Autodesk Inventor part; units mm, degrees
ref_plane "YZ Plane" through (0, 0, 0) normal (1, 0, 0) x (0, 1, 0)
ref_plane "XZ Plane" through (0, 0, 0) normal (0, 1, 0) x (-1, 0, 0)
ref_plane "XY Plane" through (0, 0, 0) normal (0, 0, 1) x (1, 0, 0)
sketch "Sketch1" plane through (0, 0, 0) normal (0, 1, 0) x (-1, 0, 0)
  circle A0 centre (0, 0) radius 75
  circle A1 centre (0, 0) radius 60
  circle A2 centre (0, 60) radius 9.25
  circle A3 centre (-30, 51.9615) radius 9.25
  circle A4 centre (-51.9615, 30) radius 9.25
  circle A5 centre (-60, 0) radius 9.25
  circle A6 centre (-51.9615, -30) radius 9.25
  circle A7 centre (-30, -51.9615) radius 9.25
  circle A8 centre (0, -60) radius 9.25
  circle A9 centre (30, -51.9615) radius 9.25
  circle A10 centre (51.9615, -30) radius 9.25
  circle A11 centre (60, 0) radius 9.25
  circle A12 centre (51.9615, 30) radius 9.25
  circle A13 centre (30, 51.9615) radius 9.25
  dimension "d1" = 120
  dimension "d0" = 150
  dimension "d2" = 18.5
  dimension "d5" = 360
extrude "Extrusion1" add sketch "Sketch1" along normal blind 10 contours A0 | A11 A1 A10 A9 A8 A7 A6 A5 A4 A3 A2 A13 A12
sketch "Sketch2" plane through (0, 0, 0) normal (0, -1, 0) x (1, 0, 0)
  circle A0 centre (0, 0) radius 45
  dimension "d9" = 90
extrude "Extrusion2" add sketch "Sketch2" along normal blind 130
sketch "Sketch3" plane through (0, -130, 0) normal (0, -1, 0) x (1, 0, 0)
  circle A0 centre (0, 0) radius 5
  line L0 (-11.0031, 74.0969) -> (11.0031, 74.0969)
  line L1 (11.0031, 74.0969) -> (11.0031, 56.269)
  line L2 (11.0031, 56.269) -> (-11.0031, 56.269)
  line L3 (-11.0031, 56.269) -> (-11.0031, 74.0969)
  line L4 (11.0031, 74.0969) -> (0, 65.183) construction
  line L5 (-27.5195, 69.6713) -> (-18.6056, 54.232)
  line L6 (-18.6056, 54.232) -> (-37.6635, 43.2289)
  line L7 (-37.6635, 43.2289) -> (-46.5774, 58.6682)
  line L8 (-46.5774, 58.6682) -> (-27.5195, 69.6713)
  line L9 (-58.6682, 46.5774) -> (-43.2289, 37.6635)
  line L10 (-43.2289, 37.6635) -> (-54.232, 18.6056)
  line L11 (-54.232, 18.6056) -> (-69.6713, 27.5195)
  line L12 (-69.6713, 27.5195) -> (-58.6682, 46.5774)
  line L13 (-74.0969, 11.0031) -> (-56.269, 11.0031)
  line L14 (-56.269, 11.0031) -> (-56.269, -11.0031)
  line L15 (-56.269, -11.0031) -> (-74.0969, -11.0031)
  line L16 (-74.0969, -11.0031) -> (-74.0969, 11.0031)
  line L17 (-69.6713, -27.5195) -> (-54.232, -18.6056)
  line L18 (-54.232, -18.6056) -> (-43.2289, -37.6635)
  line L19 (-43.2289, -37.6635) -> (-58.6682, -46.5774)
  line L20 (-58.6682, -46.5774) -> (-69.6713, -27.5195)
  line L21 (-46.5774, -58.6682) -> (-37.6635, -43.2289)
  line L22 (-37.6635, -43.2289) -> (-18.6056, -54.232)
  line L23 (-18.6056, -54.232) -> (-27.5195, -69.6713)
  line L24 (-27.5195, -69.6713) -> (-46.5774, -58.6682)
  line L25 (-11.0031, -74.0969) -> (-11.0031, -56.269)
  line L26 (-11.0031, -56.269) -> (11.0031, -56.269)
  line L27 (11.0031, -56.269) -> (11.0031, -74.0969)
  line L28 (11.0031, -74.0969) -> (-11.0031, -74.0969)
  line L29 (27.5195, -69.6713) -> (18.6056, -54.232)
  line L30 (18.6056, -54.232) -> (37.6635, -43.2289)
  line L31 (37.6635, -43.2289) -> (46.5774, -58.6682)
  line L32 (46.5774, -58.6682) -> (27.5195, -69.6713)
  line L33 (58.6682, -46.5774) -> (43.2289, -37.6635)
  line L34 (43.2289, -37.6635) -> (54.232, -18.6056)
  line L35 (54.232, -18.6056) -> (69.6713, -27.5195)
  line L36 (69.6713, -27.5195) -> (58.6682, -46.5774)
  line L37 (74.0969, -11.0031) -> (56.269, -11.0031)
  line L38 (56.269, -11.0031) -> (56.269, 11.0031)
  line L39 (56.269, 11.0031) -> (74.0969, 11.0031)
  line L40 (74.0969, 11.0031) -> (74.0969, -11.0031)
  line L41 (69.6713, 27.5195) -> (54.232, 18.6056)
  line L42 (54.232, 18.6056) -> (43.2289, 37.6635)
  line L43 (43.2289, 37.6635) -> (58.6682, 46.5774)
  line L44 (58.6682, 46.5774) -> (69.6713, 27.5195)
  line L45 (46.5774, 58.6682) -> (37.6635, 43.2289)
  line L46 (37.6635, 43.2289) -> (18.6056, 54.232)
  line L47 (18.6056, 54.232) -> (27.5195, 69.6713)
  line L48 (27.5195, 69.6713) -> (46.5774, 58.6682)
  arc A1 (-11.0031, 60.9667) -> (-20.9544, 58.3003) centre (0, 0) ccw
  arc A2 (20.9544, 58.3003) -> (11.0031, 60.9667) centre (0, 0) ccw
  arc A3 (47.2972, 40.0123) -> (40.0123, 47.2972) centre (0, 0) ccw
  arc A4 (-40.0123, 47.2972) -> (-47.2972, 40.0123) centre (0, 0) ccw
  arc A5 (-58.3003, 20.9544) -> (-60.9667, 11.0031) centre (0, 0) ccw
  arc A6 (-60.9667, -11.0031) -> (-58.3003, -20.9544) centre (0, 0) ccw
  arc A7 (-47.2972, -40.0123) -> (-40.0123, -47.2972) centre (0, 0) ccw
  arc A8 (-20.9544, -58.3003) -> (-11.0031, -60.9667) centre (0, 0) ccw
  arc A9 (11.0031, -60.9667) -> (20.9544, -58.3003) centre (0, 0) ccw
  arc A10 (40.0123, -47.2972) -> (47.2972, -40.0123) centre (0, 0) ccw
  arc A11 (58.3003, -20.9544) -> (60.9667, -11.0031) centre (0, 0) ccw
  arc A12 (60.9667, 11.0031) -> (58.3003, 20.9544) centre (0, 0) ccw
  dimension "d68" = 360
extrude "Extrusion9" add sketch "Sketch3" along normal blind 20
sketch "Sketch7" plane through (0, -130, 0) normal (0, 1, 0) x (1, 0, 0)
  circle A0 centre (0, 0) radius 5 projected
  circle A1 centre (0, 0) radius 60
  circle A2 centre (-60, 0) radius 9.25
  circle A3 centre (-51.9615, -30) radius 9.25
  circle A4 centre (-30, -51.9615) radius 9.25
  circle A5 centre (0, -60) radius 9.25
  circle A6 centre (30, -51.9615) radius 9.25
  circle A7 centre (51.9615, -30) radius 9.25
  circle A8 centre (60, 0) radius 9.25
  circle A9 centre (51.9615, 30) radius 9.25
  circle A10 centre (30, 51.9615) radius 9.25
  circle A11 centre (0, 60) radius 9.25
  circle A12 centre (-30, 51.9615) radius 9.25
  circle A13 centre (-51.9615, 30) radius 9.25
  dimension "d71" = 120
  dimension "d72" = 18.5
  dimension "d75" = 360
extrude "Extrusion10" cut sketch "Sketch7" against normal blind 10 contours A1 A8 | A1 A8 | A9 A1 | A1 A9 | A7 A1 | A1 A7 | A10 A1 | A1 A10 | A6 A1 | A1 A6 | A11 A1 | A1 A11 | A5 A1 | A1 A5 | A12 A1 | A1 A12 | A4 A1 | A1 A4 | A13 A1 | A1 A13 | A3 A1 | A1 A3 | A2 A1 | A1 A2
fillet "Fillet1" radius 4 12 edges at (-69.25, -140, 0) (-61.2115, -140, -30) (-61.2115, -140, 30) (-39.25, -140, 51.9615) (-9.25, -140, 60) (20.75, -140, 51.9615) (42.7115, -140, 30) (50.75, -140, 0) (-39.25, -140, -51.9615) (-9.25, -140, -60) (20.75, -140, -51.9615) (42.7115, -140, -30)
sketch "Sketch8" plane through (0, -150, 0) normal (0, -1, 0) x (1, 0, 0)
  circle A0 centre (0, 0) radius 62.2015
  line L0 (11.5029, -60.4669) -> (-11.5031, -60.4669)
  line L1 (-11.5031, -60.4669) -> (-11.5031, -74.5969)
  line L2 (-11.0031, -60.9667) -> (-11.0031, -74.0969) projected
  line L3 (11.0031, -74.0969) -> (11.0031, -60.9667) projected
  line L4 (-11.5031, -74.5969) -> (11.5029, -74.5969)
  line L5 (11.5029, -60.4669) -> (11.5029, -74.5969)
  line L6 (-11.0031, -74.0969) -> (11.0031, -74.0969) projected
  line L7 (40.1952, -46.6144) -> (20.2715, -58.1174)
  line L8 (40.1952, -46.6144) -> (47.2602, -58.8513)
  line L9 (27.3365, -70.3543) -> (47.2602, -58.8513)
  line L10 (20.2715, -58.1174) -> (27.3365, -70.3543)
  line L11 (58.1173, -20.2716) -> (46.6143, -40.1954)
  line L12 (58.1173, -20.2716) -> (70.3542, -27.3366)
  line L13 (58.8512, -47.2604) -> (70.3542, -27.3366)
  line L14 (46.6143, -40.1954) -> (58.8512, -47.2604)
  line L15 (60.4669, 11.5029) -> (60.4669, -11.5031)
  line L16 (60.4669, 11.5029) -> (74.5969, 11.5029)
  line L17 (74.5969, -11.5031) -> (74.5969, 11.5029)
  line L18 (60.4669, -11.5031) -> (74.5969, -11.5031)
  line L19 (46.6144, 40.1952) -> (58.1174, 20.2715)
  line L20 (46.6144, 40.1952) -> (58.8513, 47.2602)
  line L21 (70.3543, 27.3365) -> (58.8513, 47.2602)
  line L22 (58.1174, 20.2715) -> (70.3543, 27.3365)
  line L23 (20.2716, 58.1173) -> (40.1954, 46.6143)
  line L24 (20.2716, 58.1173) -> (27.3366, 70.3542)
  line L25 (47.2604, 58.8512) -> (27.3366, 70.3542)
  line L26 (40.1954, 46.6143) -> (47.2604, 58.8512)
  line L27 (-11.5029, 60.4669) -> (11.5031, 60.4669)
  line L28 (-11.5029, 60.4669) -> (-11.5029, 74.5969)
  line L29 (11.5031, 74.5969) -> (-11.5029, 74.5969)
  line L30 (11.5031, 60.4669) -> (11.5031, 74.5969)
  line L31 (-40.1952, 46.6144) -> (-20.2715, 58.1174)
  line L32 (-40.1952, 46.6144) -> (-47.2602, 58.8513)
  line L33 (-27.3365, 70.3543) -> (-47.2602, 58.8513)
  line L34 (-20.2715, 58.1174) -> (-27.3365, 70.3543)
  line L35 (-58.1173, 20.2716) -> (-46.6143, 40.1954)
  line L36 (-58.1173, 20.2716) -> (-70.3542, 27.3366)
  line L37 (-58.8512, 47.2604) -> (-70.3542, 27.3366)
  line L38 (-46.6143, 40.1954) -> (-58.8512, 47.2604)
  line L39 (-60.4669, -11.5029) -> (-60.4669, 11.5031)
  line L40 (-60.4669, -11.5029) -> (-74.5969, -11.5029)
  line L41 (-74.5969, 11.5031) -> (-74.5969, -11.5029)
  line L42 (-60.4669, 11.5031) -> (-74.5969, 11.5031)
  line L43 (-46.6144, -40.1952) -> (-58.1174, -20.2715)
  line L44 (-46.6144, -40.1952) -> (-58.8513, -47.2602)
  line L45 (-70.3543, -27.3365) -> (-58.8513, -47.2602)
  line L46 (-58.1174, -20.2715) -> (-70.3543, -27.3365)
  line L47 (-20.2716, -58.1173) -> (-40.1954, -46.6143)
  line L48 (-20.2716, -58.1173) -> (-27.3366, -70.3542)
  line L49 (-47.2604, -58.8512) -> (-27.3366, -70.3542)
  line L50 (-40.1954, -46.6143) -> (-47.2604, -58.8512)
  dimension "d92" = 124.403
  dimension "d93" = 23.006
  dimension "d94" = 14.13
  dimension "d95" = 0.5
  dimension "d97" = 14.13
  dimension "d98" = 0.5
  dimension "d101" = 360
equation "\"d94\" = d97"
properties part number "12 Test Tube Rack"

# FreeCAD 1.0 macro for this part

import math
import FreeCAD as App
import Part
import Sketcher
Q = App.Units.Quantity


def edges_at(feature, points):
    """Names of the edges that pass closest to the given points."""
    edges = feature.Shape.Edges
    near = lambda p: min(range(len(edges)), key=lambda i: edges[i].distToShape(Part.Vertex(*p))[0])
    return sorted({f"Edge{near(p) + 1}" for p in points})

doc = App.newDocument("Part")
body = doc.addObject("PartDesign::Body", "Body")

# Sketch on XZ plane
sketch1 = doc.addObject("Sketcher::SketchObject", "Sketch")
body.addObject(sketch1)
sketch1.AttachmentSupport = (doc.XZ_Plane, [""])
sketch1.MapMode = "FlatFace"
sketch1.addGeometry([
    Part.Circle(App.Vector(0, 0, 0), App.Vector(0, 0, 1), 75),  # 0
    Part.Circle(App.Vector(-52, 30, 0), App.Vector(0, 0, 1), 9),  # 1
    Part.Circle(App.Vector(-30, 52, 0), App.Vector(0, 0, 1), 9),  # 2
    Part.Circle(App.Vector(0, 60, 0), App.Vector(0, 0, 1), 9),  # 3
    Part.Circle(App.Vector(30, 52, 0), App.Vector(0, 0, 1), 9),  # 4
    Part.Circle(App.Vector(52, 30, 0), App.Vector(0, 0, 1), 9),  # 5
    Part.Circle(App.Vector(60, 0, 0), App.Vector(0, 0, 1), 9),  # 6
    Part.Circle(App.Vector(52, -30, 0), App.Vector(0, 0, 1), 9),  # 7
    Part.Circle(App.Vector(30, -52, 0), App.Vector(0, 0, 1), 9),  # 8
    Part.Circle(App.Vector(0, -60, 0), App.Vector(0, 0, 1), 9),  # 9
    Part.Circle(App.Vector(-30, -52, 0), App.Vector(0, 0, 1), 9),  # 10
    Part.Circle(App.Vector(-52, -30, 0), App.Vector(0, 0, 1), 9),  # 11
    Part.Circle(App.Vector(-60, 0, 0), App.Vector(0, 0, 1), 9),  # 12
], False)
sketch1.addConstraint([
    Sketcher.Constraint("Coincident", 0, 3, -1, 1),
    Sketcher.Constraint("Equal", 1, 2),
    Sketcher.Constraint("Equal", 2, 3),
    Sketcher.Constraint("Equal", 3, 4),
    Sketcher.Constraint("Equal", 4, 5),
    Sketcher.Constraint("Equal", 5, 6),
    Sketcher.Constraint("Equal", 6, 7),
    Sketcher.Constraint("Equal", 7, 8),
    Sketcher.Constraint("Equal", 8, 9),
    Sketcher.Constraint("Equal", 9, 10),
    Sketcher.Constraint("Equal", 10, 11),
    Sketcher.Constraint("Equal", 11, 12),
    Sketcher.Constraint("Symmetric", 1, 3, 7, 3, -1, 1),
    Sketcher.Constraint("Symmetric", 2, 3, 8, 3, -1, 1),
    Sketcher.Constraint("Symmetric", 3, 3, 9, 3, -1, 1),
    Sketcher.Constraint("Symmetric", 4, 3, 10, 3, -1, 1),
    Sketcher.Constraint("Symmetric", 5, 3, 11, 3, -1, 1),
    Sketcher.Constraint("Symmetric", 6, 3, 12, 3, -1, 1),
    Sketcher.Constraint("Symmetric", 2, 3, 4, 3, -2),
    Sketcher.Constraint("Symmetric", 1, 3, 5, 3, -2),
    Sketcher.Constraint("PointOnObject", 3, 3, -2),
    Sketcher.Constraint("PointOnObject", 6, 3, -1),
    Sketcher.Constraint("Diameter", 0, Q("150 mm")),
    Sketcher.Constraint("Diameter", 1, Q("18.5 mm")),
    Sketcher.Constraint("DistanceY", -1, 1, 1, 3, Q("30 mm")),
    Sketcher.Constraint("DistanceX", 2, 3, -1, 1, Q("30 mm")),
    Sketcher.Constraint("DistanceY", -1, 1, 3, 3, Q("60 mm")),
    Sketcher.Constraint("DistanceX", -1, 1, 6, 3, Q("60 mm")),
    Sketcher.Constraint("DistanceX", 1, 3, 5, 3, Q("103.923 mm")),
    Sketcher.Constraint("DistanceY", 8, 3, 4, 3, Q("103.923 mm")),
])
pad1 = doc.addObject("PartDesign::Pad", "Pad")
body.addObject(pad1)
pad1.Profile = sketch1
pad1.Length = 10
pad1.Reversed = True

# Sketch on XZ plane
sketch2 = doc.addObject("Sketcher::SketchObject", "Sketch001")
body.addObject(sketch2)
sketch2.AttachmentSupport = (doc.XZ_Plane, [""])
sketch2.MapMode = "FlatFace"
sketch2.addGeometry(Part.Circle(App.Vector(0, 0, 0), App.Vector(0, 0, 1), 45), False)
sketch2.addConstraint([
    Sketcher.Constraint("Coincident", 0, 3, -1, 1),
    Sketcher.Constraint("Diameter", 0, Q("90 mm")),
])
pad2 = doc.addObject("PartDesign::Pad", "Pad001")
body.addObject(pad2)
pad2.Profile = sketch2
pad2.Length = 130

# Sketch on XZ plane
sketch3 = doc.addObject("Sketcher::SketchObject", "Sketch002")
body.addObject(sketch3)
sketch3.AttachmentSupport = (doc.XZ_Plane, [""])
sketch3.MapMode = "FlatFace"
sketch3.AttachmentOffset = App.Placement(App.Vector(0, 0, 130), App.Rotation())
sketch3.addGeometry([
    Part.LineSegment(App.Vector(11.0031, 74.0969, 0), App.Vector(-11.0031, 74.0969, 0)),  # 0
    Part.LineSegment(App.Vector(-11.0031, 74.0969, 0), App.Vector(-11.0031, 60.9667, 0)),  # 1
    Part.ArcOfCircle(Part.Circle(App.Vector(0.00131, -0.005852, 0), App.Vector(0, 0, 1), 61.95764), math.radians(100.230686), math.radians(109.768854)),  # 2
    Part.LineSegment(App.Vector(-20.954429, 58.300283, 0), App.Vector(-27.5195, 69.6713, 0)),  # 3
    Part.LineSegment(App.Vector(-27.5195, 69.6713, 0), App.Vector(-46.5774, 58.6682, 0)),  # 4
    Part.LineSegment(App.Vector(-46.5774, 58.6682, 0), App.Vector(-40.012329, 47.297183, 0)),  # 5
    Part.ArcOfCircle(Part.Circle(App.Vector(0, 0, 0), App.Vector(0, 0, 1), 61.951669), math.radians(130.230422), math.radians(139.769578)),  # 6
    Part.LineSegment(App.Vector(-47.297183, 40.012329, 0), App.Vector(-58.6682, 46.5774, 0)),  # 7
    Part.LineSegment(App.Vector(-58.6682, 46.5774, 0), App.Vector(-69.6713, 27.5195, 0)),  # 8
    Part.LineSegment(App.Vector(-69.6713, 27.5195, 0), App.Vector(-58.300283, 20.954429, 0)),  # 9
    Part.ArcOfCircle(Part.Circle(App.Vector(-0.005722, 0.001791, 0), App.Vector(0, 0, 1), 61.945699), math.radians(160.230225), math.radians(169.770235)),  # 10
    Part.LineSegment(App.Vector(-60.9667, 11.0031, 0), App.Vector(-74.0969, 11.0031, 0)),  # 11
    Part.LineSegment(App.Vector(-74.0969, 11.0031, 0), App.Vector(-74.0969, -11.0031, 0)),  # 12
    Part.LineSegment(App.Vector(-74.0969, -11.0031, 0), App.Vector(-60.9667, -11.0031, 0)),  # 13
    Part.ArcOfCircle(Part.Circle(App.Vector(0.005852, 0.00131, 0), App.Vector(0, 0, 1), 61.95764), math.radians(-169.769314), math.radians(-160.231146)),  # 14
    Part.LineSegment(App.Vector(-58.300283, -20.954429, 0), App.Vector(-69.6713, -27.5195, 0)),  # 15
    Part.LineSegment(App.Vector(-69.6713, -27.5195, 0), App.Vector(-58.6682, -46.5774, 0)),  # 16
    Part.LineSegment(App.Vector(-58.6682, -46.5774, 0), App.Vector(-47.297183, -40.012329, 0)),  # 17
    Part.ArcOfCircle(Part.Circle(App.Vector(0, 0, 0), App.Vector(0, 0, 1), 61.951669), math.radians(-139.769578), math.radians(-130.230422)),  # 18
    Part.LineSegment(App.Vector(-40.012329, -47.297183, 0), App.Vector(-46.5774, -58.6682, 0)),  # 19
    Part.LineSegment(App.Vector(-46.5774, -58.6682, 0), App.Vector(-27.5195, -69.6713, 0)),  # 20
    Part.LineSegment(App.Vector(-27.5195, -69.6713, 0), App.Vector(-20.954429, -58.300283, 0)),  # 21
    Part.ArcOfCircle(Part.Circle(App.Vector(-0.001791, -0.005722, 0), App.Vector(0, 0, 1), 61.945699), math.radians(-109.769775), math.radians(-100.229765)),  # 22
    Part.LineSegment(App.Vector(-11.0031, -60.9667, 0), App.Vector(-11.0031, -74.0969, 0)),  # 23
    Part.LineSegment(App.Vector(-11.0031, -74.0969, 0), App.Vector(11.0031, -74.0969, 0)),  # 24
    Part.LineSegment(App.Vector(11.0031, -74.0969, 0), App.Vector(11.0031, -60.9667, 0)),  # 25
    Part.ArcOfCircle(Part.Circle(App.Vector(-0.00131, 0.005852, 0), App.Vector(0, 0, 1), 61.95764), math.radians(-79.769314), math.radians(-70.231146)),  # 26
    Part.LineSegment(App.Vector(20.954429, -58.300283, 0), App.Vector(27.5195, -69.6713, 0)),  # 27
    Part.LineSegment(App.Vector(27.5195, -69.6713, 0), App.Vector(46.5774, -58.6682, 0)),  # 28
    Part.LineSegment(App.Vector(46.5774, -58.6682, 0), App.Vector(40.012329, -47.297183, 0)),  # 29
    Part.ArcOfCircle(Part.Circle(App.Vector(0, 0, 0), App.Vector(0, 0, 1), 61.951669), math.radians(-49.769578), math.radians(-40.230422)),  # 30
    Part.LineSegment(App.Vector(47.297183, -40.012329, 0), App.Vector(58.6682, -46.5774, 0)),  # 31
    Part.LineSegment(App.Vector(58.6682, -46.5774, 0), App.Vector(69.6713, -27.5195, 0)),  # 32
    Part.LineSegment(App.Vector(69.6713, -27.5195, 0), App.Vector(58.300283, -20.954429, 0)),  # 33
    Part.ArcOfCircle(Part.Circle(App.Vector(0.005722, -0.001791, 0), App.Vector(0, 0, 1), 61.945699), math.radians(-19.769775), math.radians(-10.229765)),  # 34
    Part.LineSegment(App.Vector(60.9667, -11.0031, 0), App.Vector(74.0969, -11.0031, 0)),  # 35
    Part.LineSegment(App.Vector(74.0969, -11.0031, 0), App.Vector(74.0969, 11.0031, 0)),  # 36
    Part.LineSegment(App.Vector(74.0969, 11.0031, 0), App.Vector(60.9667, 11.0031, 0)),  # 37
    Part.ArcOfCircle(Part.Circle(App.Vector(-0.005852, -0.00131, 0), App.Vector(0, 0, 1), 61.95764), math.radians(10.230686), math.radians(19.768854)),  # 38
    Part.LineSegment(App.Vector(58.300283, 20.954429, 0), App.Vector(69.6713, 27.5195, 0)),  # 39
    Part.LineSegment(App.Vector(69.6713, 27.5195, 0), App.Vector(58.6682, 46.5774, 0)),  # 40
    Part.LineSegment(App.Vector(58.6682, 46.5774, 0), App.Vector(47.297183, 40.012329, 0)),  # 41
    Part.ArcOfCircle(Part.Circle(App.Vector(0, 0, 0), App.Vector(0, 0, 1), 61.951669), math.radians(40.230422), math.radians(49.769578)),  # 42
    Part.LineSegment(App.Vector(40.012329, 47.297183, 0), App.Vector(46.5774, 58.6682, 0)),  # 43
    Part.LineSegment(App.Vector(46.5774, 58.6682, 0), App.Vector(27.5195, 69.6713, 0)),  # 44
    Part.LineSegment(App.Vector(27.5195, 69.6713, 0), App.Vector(20.954429, 58.300283, 0)),  # 45
    Part.ArcOfCircle(Part.Circle(App.Vector(0.001791, 0.005722, 0), App.Vector(0, 0, 1), 61.945699), math.radians(70.230225), math.radians(79.770235)),  # 46
    Part.LineSegment(App.Vector(11.0031, 60.9667, 0), App.Vector(11.0031, 74.0969, 0)),  # 47
    Part.Circle(App.Vector(0, 0, 0), App.Vector(0, 0, 1), 5),  # 48
], False)
sketch3.addConstraint([
    Sketcher.Constraint("Coincident", 0, 2, 1, 1),
    Sketcher.Constraint("Coincident", 1, 2, 2, 1),
    Sketcher.Constraint("Coincident", 2, 2, 3, 1),
    Sketcher.Constraint("Coincident", 3, 2, 4, 1),
    Sketcher.Constraint("Coincident", 4, 2, 5, 1),
    Sketcher.Constraint("Coincident", 5, 2, 6, 1),
    Sketcher.Constraint("Coincident", 6, 2, 7, 1),
    Sketcher.Constraint("Coincident", 7, 2, 8, 1),
    Sketcher.Constraint("Coincident", 8, 2, 9, 1),
    Sketcher.Constraint("Coincident", 9, 2, 10, 1),
    Sketcher.Constraint("Coincident", 10, 2, 11, 1),
    Sketcher.Constraint("Coincident", 11, 2, 12, 1),
    Sketcher.Constraint("Coincident", 12, 2, 13, 1),
    Sketcher.Constraint("Coincident", 13, 2, 14, 1),
    Sketcher.Constraint("Coincident", 14, 2, 15, 1),
    Sketcher.Constraint("Coincident", 15, 2, 16, 1),
    Sketcher.Constraint("Coincident", 16, 2, 17, 1),
    Sketcher.Constraint("Coincident", 17, 2, 18, 1),
    Sketcher.Constraint("Coincident", 18, 2, 19, 1),
    Sketcher.Constraint("Coincident", 19, 2, 20, 1),
    Sketcher.Constraint("Coincident", 20, 2, 21, 1),
    Sketcher.Constraint("Coincident", 21, 2, 22, 1),
    Sketcher.Constraint("Coincident", 22, 2, 23, 1),
    Sketcher.Constraint("Coincident", 23, 2, 24, 1),
    Sketcher.Constraint("Coincident", 24, 2, 25, 1),
    Sketcher.Constraint("Coincident", 25, 2, 26, 1),
    Sketcher.Constraint("Coincident", 26, 2, 27, 1),
    Sketcher.Constraint("Coincident", 27, 2, 28, 1),
    Sketcher.Constraint("Coincident", 28, 2, 29, 1),
    Sketcher.Constraint("Coincident", 29, 2, 30, 1),
    Sketcher.Constraint("Coincident", 30, 2, 31, 1),
    Sketcher.Constraint("Coincident", 31, 2, 32, 1),
    Sketcher.Constraint("Coincident", 32, 2, 33, 1),
    Sketcher.Constraint("Coincident", 33, 2, 34, 1),
    Sketcher.Constraint("Coincident", 34, 2, 35, 1),
    Sketcher.Constraint("Coincident", 35, 2, 36, 1),
    Sketcher.Constraint("Coincident", 36, 2, 37, 1),
    Sketcher.Constraint("Coincident", 37, 2, 38, 1),
    Sketcher.Constraint("Coincident", 38, 2, 39, 1),
    Sketcher.Constraint("Coincident", 39, 2, 40, 1),
    Sketcher.Constraint("Coincident", 40, 2, 41, 1),
    Sketcher.Constraint("Coincident", 41, 2, 42, 1),
    Sketcher.Constraint("Coincident", 42, 2, 43, 1),
    Sketcher.Constraint("Coincident", 43, 2, 44, 1),
    Sketcher.Constraint("Coincident", 44, 2, 45, 1),
    Sketcher.Constraint("Coincident", 45, 2, 46, 1),
    Sketcher.Constraint("Coincident", 46, 2, 47, 1),
    Sketcher.Constraint("Coincident", 47, 2, 0, 1),
    Sketcher.Constraint("Horizontal", 0),
    Sketcher.Constraint("Vertical", 1),
    Sketcher.Constraint("Horizontal", 11),
    Sketcher.Constraint("Vertical", 12),
    Sketcher.Constraint("Horizontal", 13),
    Sketcher.Constraint("Vertical", 23),
    Sketcher.Constraint("Horizontal", 24),
    Sketcher.Constraint("Vertical", 25),
    Sketcher.Constraint("Horizontal", 35),
    Sketcher.Constraint("Vertical", 36),
    Sketcher.Constraint("Horizontal", 37),
    Sketcher.Constraint("Vertical", 47),
    Sketcher.Constraint("Coincident", 6, 3, -1, 1),
    Sketcher.Constraint("Coincident", 18, 3, -1, 1),
    Sketcher.Constraint("Coincident", 30, 3, -1, 1),
    Sketcher.Constraint("Coincident", 42, 3, -1, 1),
    Sketcher.Constraint("Coincident", 48, 3, -1, 1),
    Sketcher.Constraint("Equal", 2, 14),
    Sketcher.Constraint("Equal", 6, 18),
    Sketcher.Constraint("Equal", 10, 22),
    Sketcher.Constraint("Equal", 14, 26),
    Sketcher.Constraint("Equal", 18, 30),
    Sketcher.Constraint("Equal", 22, 34),
    Sketcher.Constraint("Equal", 26, 38),
    Sketcher.Constraint("Equal", 30, 42),
    Sketcher.Constraint("Equal", 34, 46),
    Sketcher.Constraint("Symmetric", 2, 3, 26, 3, -1, 1),
    Sketcher.Constraint("Symmetric", 10, 3, 34, 3, -1, 1),
    Sketcher.Constraint("Symmetric", 14, 3, 38, 3, -1, 1),
    Sketcher.Constraint("Symmetric", 22, 3, 46, 3, -1, 1),
    Sketcher.Constraint("Symmetric", 0, 2, 24, 2, -1, 1),
    Sketcher.Constraint("Symmetric", 3, 2, 27, 2, -1, 1),
    Sketcher.Constraint("Symmetric", 4, 2, 28, 2, -1, 1),
    Sketcher.Constraint("Symmetric", 7, 2, 31, 2, -1, 1),
    Sketcher.Constraint("Symmetric", 8, 2, 32, 2, -1, 1),
    Sketcher.Constraint("Symmetric", 11, 2, 35, 2, -1, 1),
    Sketcher.Constraint("Symmetric", 15, 2, 39, 2, -1, 1),
    Sketcher.Constraint("Symmetric", 16, 2, 40, 2, -1, 1),
    Sketcher.Constraint("Symmetric", 19, 2, 43, 2, -1, 1),
    Sketcher.Constraint("Symmetric", 20, 2, 44, 2, -1, 1),
    Sketcher.Constraint("Symmetric", 22, 2, 25, 2, -2),
    Sketcher.Constraint("Symmetric", 21, 2, 26, 2, -2),
    Sketcher.Constraint("Symmetric", 20, 2, 27, 2, -2),
    Sketcher.Constraint("Symmetric", 19, 2, 28, 2, -2),
    Sketcher.Constraint("Symmetric", 16, 2, 31, 2, -2),
    Sketcher.Constraint("Symmetric", 15, 2, 32, 2, -2),
    Sketcher.Constraint("Symmetric", 14, 2, 33, 2, -2),
    Sketcher.Constraint("Symmetric", 13, 2, 34, 2, -2),
    Sketcher.Constraint("Perpendicular", 3, 4),
    Sketcher.Constraint("Perpendicular", 4, 5),
    Sketcher.Constraint("Perpendicular", 7, 8),
    Sketcher.Constraint("Perpendicular", 8, 9),
    Sketcher.Constraint("Perpendicular", 5, 15),
    Sketcher.Constraint("Perpendicular", 15, 16),
    Sketcher.Constraint("Perpendicular", 16, 17),
    Sketcher.Constraint("Perpendicular", 9, 19),
    Sketcher.Constraint("Perpendicular", 20, 21),
    Sketcher.Constraint("Perpendicular", 28, 29),
    Sketcher.Constraint("Perpendicular", 21, 31),
    Sketcher.Constraint("Perpendicular", 29, 39),
    Sketcher.Constraint("Perpendicular", 40, 41),
    Sketcher.Constraint("Perpendicular", 33, 43),
    Sketcher.Constraint("Perpendicular", 44, 45),
    Sketcher.Constraint("Horizontal", 2, 3, 22, 3),
    Sketcher.Constraint("Horizontal", 11, 2, 36, 2),
    Sketcher.Constraint("Horizontal", 1, 2, 46, 2),
    Sketcher.Constraint("Vertical", 14, 3, 34, 3),
    Sketcher.Constraint("Equal", 37, 1),
    Sketcher.Constraint("Equal", 24, 12),
    Sketcher.Constraint("Equal", 3, 5),
    Sketcher.Constraint("Equal", 5, 7),
    Sketcher.Constraint("Equal", 4, 8),
    Sketcher.Constraint("Equal", 7, 9),
    Sketcher.Constraint("Diameter", 48, Q("10 mm")),
    Sketcher.Constraint("Angle", 3, Q("120 deg")),
    Sketcher.Constraint("Radius", 2, Q("61.9576 mm")),
    Sketcher.Constraint("Radius", 6, Q("61.9517 mm")),
    Sketcher.Constraint("Radius", 10, Q("61.9457 mm")),
    Sketcher.Constraint("DistanceX", 0, 2, 0, 1, Q("22.0062 mm")),
    Sketcher.Constraint("DistanceX", 11, 2, 11, 1, Q("13.1302 mm")),
    Sketcher.Constraint("DistanceY", -1, 1, 0, 2, Q("74.097 mm")),
    Sketcher.Constraint("DistanceX", 11, 2, -1, 1, Q("74.097 mm")),
    Sketcher.Constraint("Distance", 3, Q("13.1301 mm")),
    Sketcher.Constraint("Distance", 4, Q("22.0062 mm")),
])
pad3 = doc.addObject("PartDesign::Pad", "Pad002")
body.addObject(pad3)
pad3.Profile = sketch3
pad3.Length = 20

# Sketch on XZ plane
sketch4 = doc.addObject("Sketcher::SketchObject", "Sketch003")
body.addObject(sketch4)
sketch4.AttachmentSupport = (doc.XZ_Plane, [""])
sketch4.MapMode = "FlatFace"
sketch4.AttachmentOffset = App.Placement(App.Vector(0, 0, 130), App.Rotation())
sketch4.addGeometry([
    Part.Circle(App.Vector(60, 0, 0), App.Vector(0, 0, 1), 9),  # 0
    Part.Circle(App.Vector(52, -30, 0), App.Vector(0, 0, 1), 9),  # 1
    Part.Circle(App.Vector(52, 30, 0), App.Vector(0, 0, 1), 9),  # 2
    Part.Circle(App.Vector(30, -52, 0), App.Vector(0, 0, 1), 9),  # 3
    Part.Circle(App.Vector(30, 52, 0), App.Vector(0, 0, 1), 9),  # 4
    Part.Circle(App.Vector(0, -60, 0), App.Vector(0, 0, 1), 9),  # 5
    Part.Circle(App.Vector(0, 60, 0), App.Vector(0, 0, 1), 9),  # 6
    Part.Circle(App.Vector(-30, -52, 0), App.Vector(0, 0, 1), 9),  # 7
    Part.Circle(App.Vector(-30, 52, 0), App.Vector(0, 0, 1), 9),  # 8
    Part.Circle(App.Vector(-52, -30, 0), App.Vector(0, 0, 1), 9),  # 9
    Part.Circle(App.Vector(-52, 30, 0), App.Vector(0, 0, 1), 9),  # 10
    Part.Circle(App.Vector(-60, 0, 0), App.Vector(0, 0, 1), 9),  # 11
], False)
sketch4.addConstraint([
    Sketcher.Constraint("Equal", 0, 1),
    Sketcher.Constraint("Equal", 1, 2),
    Sketcher.Constraint("Equal", 2, 3),
    Sketcher.Constraint("Equal", 3, 4),
    Sketcher.Constraint("Equal", 4, 5),
    Sketcher.Constraint("Equal", 5, 6),
    Sketcher.Constraint("Equal", 6, 7),
    Sketcher.Constraint("Equal", 7, 8),
    Sketcher.Constraint("Equal", 8, 9),
    Sketcher.Constraint("Equal", 9, 10),
    Sketcher.Constraint("Equal", 10, 11),
    Sketcher.Constraint("Symmetric", 5, 3, 6, 3, -1, 1),
    Sketcher.Constraint("Symmetric", 4, 3, 7, 3, -1, 1),
    Sketcher.Constraint("Symmetric", 3, 3, 8, 3, -1, 1),
    Sketcher.Constraint("Symmetric", 2, 3, 9, 3, -1, 1),
    Sketcher.Constraint("Symmetric", 1, 3, 10, 3, -1, 1),
    Sketcher.Constraint("Symmetric", 0, 3, 11, 3, -1, 1),
    Sketcher.Constraint("Symmetric", 3, 3, 7, 3, -2),
    Sketcher.Constraint("Symmetric", 1, 3, 9, 3, -2),
    Sketcher.Constraint("PointOnObject", 0, 3, -1),
    Sketcher.Constraint("PointOnObject", 5, 3, -2),
    Sketcher.Constraint("Diameter", 0, Q("18.5 mm")),
    Sketcher.Constraint("DistanceX", -1, 1, 0, 3, Q("60 mm")),
    Sketcher.Constraint("DistanceY", 1, 3, -1, 1, Q("30 mm")),
    Sketcher.Constraint("DistanceX", -1, 1, 3, 3, Q("30 mm")),
    Sketcher.Constraint("DistanceY", 5, 3, -1, 1, Q("60 mm")),
    Sketcher.Constraint("DistanceY", 3, 3, 4, 3, Q("103.923 mm")),
    Sketcher.Constraint("DistanceX", 9, 3, 1, 3, Q("103.923 mm")),
])
pocket1 = doc.addObject("PartDesign::Pocket", "Pocket")
body.addObject(pocket1)
pocket1.Profile = sketch4
pocket1.Length = 10
pocket1.Reversed = True
doc.recompute()

fillet = doc.addObject("PartDesign::Fillet", "Fillet")
body.addObject(fillet)
fillet.Base = (pocket1, edges_at(pocket1, [
    (-69.25, -140, 0),
    (-61.212, -140, -30),
    (-61.212, -140, 30),
    (-39.25, -140, 51.962),
    (-9.25, -140, 60),
    (20.75, -140, 51.962),
    (42.712, -140, 30),
    (50.75, -140, 0),
    (-39.25, -140, -51.962),
    (-9.25, -140, -60),
    (20.75, -140, -51.962),
    (42.712, -140, -30),
]))
fillet.Radius = 4

doc.recompute()
